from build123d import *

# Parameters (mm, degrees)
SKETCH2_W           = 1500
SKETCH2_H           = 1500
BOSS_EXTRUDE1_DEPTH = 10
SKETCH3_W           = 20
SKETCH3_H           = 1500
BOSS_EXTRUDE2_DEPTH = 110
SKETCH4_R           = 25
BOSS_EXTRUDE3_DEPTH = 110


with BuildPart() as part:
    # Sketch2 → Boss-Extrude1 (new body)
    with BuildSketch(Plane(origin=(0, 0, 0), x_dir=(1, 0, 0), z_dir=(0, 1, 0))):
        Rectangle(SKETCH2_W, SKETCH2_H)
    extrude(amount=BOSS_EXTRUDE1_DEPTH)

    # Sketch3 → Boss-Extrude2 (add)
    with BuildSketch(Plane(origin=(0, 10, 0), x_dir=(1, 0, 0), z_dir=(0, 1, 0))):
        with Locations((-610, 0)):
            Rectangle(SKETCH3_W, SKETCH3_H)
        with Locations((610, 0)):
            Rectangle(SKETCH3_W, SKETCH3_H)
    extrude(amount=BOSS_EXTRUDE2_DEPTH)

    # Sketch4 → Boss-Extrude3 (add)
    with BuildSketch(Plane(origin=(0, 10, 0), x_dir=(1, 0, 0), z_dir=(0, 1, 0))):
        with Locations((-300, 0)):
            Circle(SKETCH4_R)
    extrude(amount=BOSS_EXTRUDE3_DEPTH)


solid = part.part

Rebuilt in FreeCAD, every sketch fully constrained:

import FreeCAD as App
import Part
import Sketcher
from FreeCAD import Vector


def add_polygon(sketch, points):
    """Adds a closed chain of lines whose ends are joined by coincident constraints."""
    first, n = sketch.GeometryCount, len(points)
    for a, b in zip(points, points[1:] + points[:1]):
        sketch.addGeometry(Part.LineSegment(App.Vector(*a, 0), App.Vector(*b, 0)), False)
    for i in range(n):
        sketch.addConstraint(Sketcher.Constraint("Coincident", first + i, 2, first + (i + 1) % n, 1))

doc = App.newDocument("Part")
params = doc.addObject("Spreadsheet::Sheet", "Params")
for row, (alias, value) in enumerate([
    ("sketch1_width", "1500 mm"),
    ("pad1_length", "10 mm"),
    ("sketch2_width", "20 mm"),
    ("sketch2_height", "1500 mm"),
    ("pad2_length", "110 mm"),
    ("sketch3_diameter", "50 mm"),
    ("pad3_length", "110 mm"),
], start=1):
    params.set(f"A{row}", alias)
    params.set(f"B{row}", "=" + value)
    params.setAlias(f"B{row}", alias)

body = doc.addObject("PartDesign::Body", "Body")

sketch1 = body.newObject("Sketcher::SketchObject", "Sketch")
sketch1.AttachmentSupport = (doc.getObject("XZ_Plane"), [""])
sketch1.MapMode = "FlatFace"
add_polygon(sketch1, [(-750, -750), (-750, 750), (750, 750), (750, -750)])
sketch1.addConstraint([
    Sketcher.Constraint("Vertical", 0),
    Sketcher.Constraint("Horizontal", 1),
    Sketcher.Constraint("Vertical", 2),
    Sketcher.Constraint("Horizontal", 3),
    Sketcher.Constraint("Symmetric", 0, 2, 2, 2, -1, 1),
    Sketcher.Constraint("Equal", 3, 0),
    Sketcher.Constraint("DistanceX", 1, 1, 1, 2, 1500.0),
])
sketch1.setExpression("Constraints[10]", "Params.sketch1_width")
pad1 = body.newObject("PartDesign::Pad", "Pad")
pad1.Profile = sketch1
pad1.setExpression("Length", "Params.pad1_length")
pad1.Reversed = True

sketch2 = body.newObject("Sketcher::SketchObject", "Sketch001")
sketch2.AttachmentSupport = (doc.getObject("XZ_Plane"), [""])
sketch2.MapMode = "FlatFace"
sketch2.AttachmentOffset = App.Placement(Vector(0, 0, -10), App.Rotation())
add_polygon(sketch2, [(-620, -750), (-620, 750), (-600, 750), (-600, -750)])
add_polygon(sketch2, [(600, -750), (600, 750), (620, 750), (620, -750)])
sketch2.addConstraint([
    Sketcher.Constraint("Vertical", 0),
    Sketcher.Constraint("Horizontal", 1),
    Sketcher.Constraint("Vertical", 2),
    Sketcher.Constraint("Horizontal", 3),
    Sketcher.Constraint("Vertical", 4),
    Sketcher.Constraint("Horizontal", 5),
    Sketcher.Constraint("Vertical", 6),
    Sketcher.Constraint("Horizontal", 7),
    Sketcher.Constraint("Symmetric", 2, 2, 4, 2, -1, 1),
    Sketcher.Constraint("Symmetric", 0, 2, 6, 2, -1, 1),
    Sketcher.Constraint("Horizontal", 1, 2, 4, 2),
    Sketcher.Constraint("DistanceX", 1, 1, 1, 2, 20.0),
    Sketcher.Constraint("DistanceY", 0, 1, 0, 2, 1500.0),
    Sketcher.Constraint("DistanceX", 0, 2, -1, 1, 620.0),
])
sketch2.setExpression("Constraints[19]", "Params.sketch2_width")
sketch2.setExpression("Constraints[20]", "Params.sketch2_height")
pad2 = body.newObject("PartDesign::Pad", "Pad001")
pad2.Profile = sketch2
pad2.setExpression("Length", "Params.pad2_length")
pad2.Reversed = True

sketch3 = body.newObject("Sketcher::SketchObject", "Sketch002")
sketch3.AttachmentSupport = (doc.getObject("XZ_Plane"), [""])
sketch3.MapMode = "FlatFace"
sketch3.AttachmentOffset = App.Placement(Vector(0, 0, -10), App.Rotation())
sketch3.addGeometry(Part.Circle(Vector(-300, 0, 0), Vector(0, 0, 1), 25), False)
sketch3.addConstraint([
    Sketcher.Constraint("PointOnObject", 0, 3, -1),
    Sketcher.Constraint("Diameter", 0, 50.0),
    Sketcher.Constraint("DistanceX", 0, 3, -1, 1, 300.0),
])
sketch3.setExpression("Constraints[1]", "Params.sketch3_diameter")
pad3 = body.newObject("PartDesign::Pad", "Pad002")
pad3.Profile = sketch3
pad3.setExpression("Length", "Params.pad3_length")
pad3.Reversed = True

doc.recompute()
